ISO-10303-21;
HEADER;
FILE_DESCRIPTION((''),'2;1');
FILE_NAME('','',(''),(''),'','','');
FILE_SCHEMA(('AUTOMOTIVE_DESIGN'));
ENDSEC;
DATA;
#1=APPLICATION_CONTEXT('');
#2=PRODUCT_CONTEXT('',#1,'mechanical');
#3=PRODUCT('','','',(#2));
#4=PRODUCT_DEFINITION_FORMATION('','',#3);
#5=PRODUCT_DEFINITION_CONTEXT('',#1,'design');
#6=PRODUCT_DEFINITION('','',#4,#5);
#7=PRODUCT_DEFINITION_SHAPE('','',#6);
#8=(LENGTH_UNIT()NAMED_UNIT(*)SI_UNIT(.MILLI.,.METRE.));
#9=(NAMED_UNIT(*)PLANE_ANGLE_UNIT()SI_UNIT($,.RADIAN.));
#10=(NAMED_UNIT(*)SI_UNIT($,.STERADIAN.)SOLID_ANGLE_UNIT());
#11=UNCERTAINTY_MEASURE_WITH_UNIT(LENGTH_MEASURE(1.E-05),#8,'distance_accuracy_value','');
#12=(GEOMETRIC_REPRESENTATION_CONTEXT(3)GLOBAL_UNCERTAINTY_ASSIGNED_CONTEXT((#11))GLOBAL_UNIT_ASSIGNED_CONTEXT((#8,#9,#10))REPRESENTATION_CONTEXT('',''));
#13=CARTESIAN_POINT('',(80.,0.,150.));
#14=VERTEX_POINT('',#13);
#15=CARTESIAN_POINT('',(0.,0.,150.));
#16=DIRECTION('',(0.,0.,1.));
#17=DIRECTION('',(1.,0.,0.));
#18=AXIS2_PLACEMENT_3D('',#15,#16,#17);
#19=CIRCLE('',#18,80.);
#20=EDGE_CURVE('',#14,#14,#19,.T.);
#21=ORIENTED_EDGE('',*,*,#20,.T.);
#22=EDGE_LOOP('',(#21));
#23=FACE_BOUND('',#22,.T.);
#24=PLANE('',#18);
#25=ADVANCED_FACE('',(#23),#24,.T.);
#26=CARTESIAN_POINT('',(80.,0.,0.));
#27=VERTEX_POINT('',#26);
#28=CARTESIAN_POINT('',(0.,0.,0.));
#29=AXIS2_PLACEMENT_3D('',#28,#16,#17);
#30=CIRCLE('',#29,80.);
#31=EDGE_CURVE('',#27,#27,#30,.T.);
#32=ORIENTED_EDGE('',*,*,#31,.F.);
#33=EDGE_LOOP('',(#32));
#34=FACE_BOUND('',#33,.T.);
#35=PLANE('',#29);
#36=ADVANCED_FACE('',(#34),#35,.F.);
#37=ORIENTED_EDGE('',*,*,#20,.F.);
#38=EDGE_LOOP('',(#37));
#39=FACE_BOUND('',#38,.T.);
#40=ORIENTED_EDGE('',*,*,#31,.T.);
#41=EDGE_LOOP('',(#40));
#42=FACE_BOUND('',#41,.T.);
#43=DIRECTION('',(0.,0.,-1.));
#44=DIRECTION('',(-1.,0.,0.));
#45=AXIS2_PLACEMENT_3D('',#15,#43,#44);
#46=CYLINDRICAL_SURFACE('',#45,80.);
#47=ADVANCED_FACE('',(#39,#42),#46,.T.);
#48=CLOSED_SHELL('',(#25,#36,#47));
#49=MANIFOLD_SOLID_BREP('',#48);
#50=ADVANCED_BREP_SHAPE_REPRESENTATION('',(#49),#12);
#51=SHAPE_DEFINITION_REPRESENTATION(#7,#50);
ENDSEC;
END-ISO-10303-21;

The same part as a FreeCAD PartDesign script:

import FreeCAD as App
import Part
import Sketcher

doc = App.newDocument("Part")
body = doc.addObject("PartDesign::Body", "Body")

# Sketch on XY plane
sketch1 = doc.addObject("Sketcher::SketchObject", "Sketch")
body.addObject(sketch1)
sketch1.AttachmentSupport = (doc.XY_Plane, [""])
sketch1.MapMode = "FlatFace"
sketch1.addGeometry(Part.Circle(App.Vector(0, 0, 0), App.Vector(0, 0, 1), 80), False)
sketch1.addConstraint(Sketcher.Constraint("Coincident", 0, 3, -1, 1))
sketch1.addConstraint(Sketcher.Constraint("Diameter", 0, 160.0))
pad1 = doc.addObject("PartDesign::Pad", "Pad")
body.addObject(pad1)
pad1.Profile = sketch1
pad1.Length = 150

doc.recompute()
